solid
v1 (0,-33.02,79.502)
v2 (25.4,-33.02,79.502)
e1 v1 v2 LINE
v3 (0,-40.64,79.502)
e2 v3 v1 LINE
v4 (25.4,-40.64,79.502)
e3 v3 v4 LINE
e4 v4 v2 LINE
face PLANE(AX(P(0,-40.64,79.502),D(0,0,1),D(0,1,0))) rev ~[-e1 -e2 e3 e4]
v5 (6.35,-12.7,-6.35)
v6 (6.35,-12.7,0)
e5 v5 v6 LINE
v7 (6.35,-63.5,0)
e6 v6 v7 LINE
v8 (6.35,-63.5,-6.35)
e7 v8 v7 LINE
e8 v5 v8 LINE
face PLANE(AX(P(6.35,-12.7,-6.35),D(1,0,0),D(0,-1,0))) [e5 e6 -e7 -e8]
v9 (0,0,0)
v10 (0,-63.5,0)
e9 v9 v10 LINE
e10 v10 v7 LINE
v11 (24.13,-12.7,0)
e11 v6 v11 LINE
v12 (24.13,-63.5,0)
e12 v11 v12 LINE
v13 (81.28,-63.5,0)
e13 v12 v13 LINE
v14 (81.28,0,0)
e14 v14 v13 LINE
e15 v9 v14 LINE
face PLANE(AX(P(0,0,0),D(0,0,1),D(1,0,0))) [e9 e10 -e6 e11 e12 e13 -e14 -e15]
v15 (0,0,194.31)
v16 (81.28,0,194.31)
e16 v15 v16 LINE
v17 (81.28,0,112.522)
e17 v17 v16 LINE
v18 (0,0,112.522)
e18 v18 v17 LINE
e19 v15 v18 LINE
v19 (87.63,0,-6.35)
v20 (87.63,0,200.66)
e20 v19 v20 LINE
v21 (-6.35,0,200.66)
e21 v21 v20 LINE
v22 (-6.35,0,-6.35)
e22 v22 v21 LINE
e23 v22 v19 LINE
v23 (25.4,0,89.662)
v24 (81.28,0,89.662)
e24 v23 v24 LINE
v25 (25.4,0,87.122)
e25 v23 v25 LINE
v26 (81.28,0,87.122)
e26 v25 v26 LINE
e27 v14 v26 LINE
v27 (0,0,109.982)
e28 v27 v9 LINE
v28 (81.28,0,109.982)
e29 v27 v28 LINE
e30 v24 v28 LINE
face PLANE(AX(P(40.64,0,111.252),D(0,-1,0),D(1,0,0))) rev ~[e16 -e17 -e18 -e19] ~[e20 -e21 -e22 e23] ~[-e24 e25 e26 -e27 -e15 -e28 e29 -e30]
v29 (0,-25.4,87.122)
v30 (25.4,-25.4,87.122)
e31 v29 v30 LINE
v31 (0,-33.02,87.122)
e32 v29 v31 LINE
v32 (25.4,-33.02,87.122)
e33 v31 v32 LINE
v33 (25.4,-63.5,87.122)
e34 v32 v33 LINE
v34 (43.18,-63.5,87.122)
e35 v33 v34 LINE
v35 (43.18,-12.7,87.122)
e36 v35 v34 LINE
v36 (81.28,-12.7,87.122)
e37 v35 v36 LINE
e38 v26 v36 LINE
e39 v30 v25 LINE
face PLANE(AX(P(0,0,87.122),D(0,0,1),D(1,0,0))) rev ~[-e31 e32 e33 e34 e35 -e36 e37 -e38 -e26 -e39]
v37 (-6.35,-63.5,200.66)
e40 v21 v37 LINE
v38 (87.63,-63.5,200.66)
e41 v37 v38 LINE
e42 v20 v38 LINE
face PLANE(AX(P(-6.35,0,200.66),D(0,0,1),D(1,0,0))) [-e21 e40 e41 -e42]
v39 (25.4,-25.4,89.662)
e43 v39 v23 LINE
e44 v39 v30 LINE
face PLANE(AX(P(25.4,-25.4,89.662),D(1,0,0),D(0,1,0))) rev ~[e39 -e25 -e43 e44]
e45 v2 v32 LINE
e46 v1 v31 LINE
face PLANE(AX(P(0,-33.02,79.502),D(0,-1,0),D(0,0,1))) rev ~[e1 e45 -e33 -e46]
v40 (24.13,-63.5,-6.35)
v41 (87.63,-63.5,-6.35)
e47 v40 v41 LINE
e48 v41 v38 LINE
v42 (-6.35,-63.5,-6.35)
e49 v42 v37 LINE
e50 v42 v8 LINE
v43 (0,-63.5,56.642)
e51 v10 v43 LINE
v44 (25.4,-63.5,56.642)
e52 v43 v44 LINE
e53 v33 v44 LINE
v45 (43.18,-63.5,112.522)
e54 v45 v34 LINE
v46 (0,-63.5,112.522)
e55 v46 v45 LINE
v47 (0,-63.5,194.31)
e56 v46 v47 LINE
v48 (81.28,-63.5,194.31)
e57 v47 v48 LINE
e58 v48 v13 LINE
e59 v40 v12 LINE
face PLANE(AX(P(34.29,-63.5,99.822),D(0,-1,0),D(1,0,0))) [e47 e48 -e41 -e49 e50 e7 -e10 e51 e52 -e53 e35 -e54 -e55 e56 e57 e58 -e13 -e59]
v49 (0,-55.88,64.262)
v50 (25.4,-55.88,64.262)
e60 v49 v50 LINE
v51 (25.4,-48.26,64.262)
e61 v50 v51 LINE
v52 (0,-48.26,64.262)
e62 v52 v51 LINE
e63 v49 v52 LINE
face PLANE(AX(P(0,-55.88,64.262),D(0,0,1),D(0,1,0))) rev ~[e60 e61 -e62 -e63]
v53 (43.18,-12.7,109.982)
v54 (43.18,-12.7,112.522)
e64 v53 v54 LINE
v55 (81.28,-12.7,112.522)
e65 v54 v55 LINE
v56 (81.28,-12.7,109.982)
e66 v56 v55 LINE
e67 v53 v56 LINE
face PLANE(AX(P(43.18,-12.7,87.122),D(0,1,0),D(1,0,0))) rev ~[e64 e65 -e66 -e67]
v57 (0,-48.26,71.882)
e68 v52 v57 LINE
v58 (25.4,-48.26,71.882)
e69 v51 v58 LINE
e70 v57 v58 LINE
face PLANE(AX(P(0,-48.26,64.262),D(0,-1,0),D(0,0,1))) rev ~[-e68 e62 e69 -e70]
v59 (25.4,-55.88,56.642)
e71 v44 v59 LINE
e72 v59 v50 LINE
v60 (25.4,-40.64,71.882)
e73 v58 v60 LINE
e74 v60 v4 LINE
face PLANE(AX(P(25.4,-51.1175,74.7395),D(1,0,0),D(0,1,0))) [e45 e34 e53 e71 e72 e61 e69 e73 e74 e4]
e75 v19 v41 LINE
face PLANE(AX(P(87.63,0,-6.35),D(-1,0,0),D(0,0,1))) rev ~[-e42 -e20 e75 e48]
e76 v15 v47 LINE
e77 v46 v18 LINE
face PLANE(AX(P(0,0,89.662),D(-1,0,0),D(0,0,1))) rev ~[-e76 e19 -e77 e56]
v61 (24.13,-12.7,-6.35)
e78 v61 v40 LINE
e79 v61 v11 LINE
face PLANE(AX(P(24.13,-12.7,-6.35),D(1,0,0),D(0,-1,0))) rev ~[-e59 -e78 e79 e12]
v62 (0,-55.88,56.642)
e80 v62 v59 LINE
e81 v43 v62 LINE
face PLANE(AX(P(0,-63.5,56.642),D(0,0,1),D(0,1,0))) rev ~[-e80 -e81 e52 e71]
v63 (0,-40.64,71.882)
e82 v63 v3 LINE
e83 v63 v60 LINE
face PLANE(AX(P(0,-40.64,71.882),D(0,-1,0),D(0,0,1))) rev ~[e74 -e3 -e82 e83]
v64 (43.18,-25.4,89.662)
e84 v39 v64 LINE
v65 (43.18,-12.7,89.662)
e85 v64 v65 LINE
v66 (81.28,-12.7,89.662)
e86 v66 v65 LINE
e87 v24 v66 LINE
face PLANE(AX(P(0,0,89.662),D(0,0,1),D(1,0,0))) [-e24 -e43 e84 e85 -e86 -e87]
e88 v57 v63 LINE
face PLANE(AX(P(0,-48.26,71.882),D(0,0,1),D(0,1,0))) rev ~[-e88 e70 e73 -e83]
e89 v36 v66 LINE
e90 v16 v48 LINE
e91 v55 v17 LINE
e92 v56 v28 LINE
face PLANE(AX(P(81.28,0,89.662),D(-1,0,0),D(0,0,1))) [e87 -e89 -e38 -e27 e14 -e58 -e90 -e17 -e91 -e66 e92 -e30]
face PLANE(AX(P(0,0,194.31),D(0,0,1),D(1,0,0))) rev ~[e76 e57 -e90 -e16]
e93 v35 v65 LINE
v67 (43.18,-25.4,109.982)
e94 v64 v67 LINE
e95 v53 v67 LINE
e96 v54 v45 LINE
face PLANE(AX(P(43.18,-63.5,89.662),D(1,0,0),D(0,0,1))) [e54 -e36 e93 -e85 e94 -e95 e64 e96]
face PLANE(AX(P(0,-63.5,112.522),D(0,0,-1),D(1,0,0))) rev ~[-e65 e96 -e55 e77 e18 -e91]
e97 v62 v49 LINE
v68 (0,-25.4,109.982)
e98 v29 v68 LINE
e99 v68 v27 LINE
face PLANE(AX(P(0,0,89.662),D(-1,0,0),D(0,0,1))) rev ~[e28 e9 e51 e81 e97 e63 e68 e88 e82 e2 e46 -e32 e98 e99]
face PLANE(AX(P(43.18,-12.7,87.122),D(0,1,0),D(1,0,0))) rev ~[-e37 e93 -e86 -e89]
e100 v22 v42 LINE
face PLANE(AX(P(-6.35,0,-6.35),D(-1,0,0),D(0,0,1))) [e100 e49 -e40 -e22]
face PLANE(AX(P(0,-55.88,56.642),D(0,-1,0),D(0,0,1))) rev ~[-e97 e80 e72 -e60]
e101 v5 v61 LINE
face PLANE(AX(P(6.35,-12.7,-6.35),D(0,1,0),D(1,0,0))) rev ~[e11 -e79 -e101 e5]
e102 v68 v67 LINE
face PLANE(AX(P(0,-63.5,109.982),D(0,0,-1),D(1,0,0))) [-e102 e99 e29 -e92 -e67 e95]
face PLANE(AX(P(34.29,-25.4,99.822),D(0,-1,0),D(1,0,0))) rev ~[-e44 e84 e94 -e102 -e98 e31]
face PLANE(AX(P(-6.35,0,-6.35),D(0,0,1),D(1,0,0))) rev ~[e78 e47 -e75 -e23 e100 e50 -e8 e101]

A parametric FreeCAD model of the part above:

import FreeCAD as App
import Part
import Sketcher
from FreeCAD import Vector
Q = App.Units.Quantity

doc = App.newDocument("Part")
body = doc.addObject("PartDesign::Body", "Body")

sketch1 = body.newObject("Sketcher::SketchObject", "Sketch")
sketch1.AttachmentSupport = (doc.getObject("XZ_Plane"), [""])
sketch1.MapMode = "FlatFace"
sketch1.addGeometry([
    Part.LineSegment(Vector(-6, 201, 0), Vector(-6, -6, 0)),
    Part.LineSegment(Vector(-6, -6, 0), Vector(88, -6, 0)),
    Part.LineSegment(Vector(88, -6, 0), Vector(88, 201, 0)),
    Part.LineSegment(Vector(88, 201, 0), Vector(-6, 201, 0)),
    Part.LineSegment(Vector(81, 0, 0), Vector(0, 0, 0)),
    Part.LineSegment(Vector(0, 0, 0), Vector(0, 87, 0)),
    Part.LineSegment(Vector(0, 87, 0), Vector(81, 87, 0)),
    Part.LineSegment(Vector(81, 87, 0), Vector(81, 0, 0)),
    Part.LineSegment(Vector(81, 90, 0), Vector(0, 90, 0)),
    Part.LineSegment(Vector(0, 90, 0), Vector(0, 194, 0)),
    Part.LineSegment(Vector(0, 194, 0), Vector(81, 194, 0)),
    Part.LineSegment(Vector(81, 194, 0), Vector(81, 90, 0)),
], False)
sketch1.addConstraint([
    Sketcher.Constraint("Coincident", 0, 2, 1, 1),
    Sketcher.Constraint("Coincident", 1, 2, 2, 1),
    Sketcher.Constraint("Coincident", 2, 2, 3, 1),
    Sketcher.Constraint("Coincident", 3, 2, 0, 1),
    Sketcher.Constraint("Coincident", 4, 2, 5, 1),
    Sketcher.Constraint("Coincident", 5, 2, 6, 1),
    Sketcher.Constraint("Coincident", 6, 2, 7, 1),
    Sketcher.Constraint("Coincident", 7, 2, 4, 1),
    Sketcher.Constraint("Coincident", 8, 2, 9, 1),
    Sketcher.Constraint("Coincident", 9, 2, 10, 1),
    Sketcher.Constraint("Coincident", 10, 2, 11, 1),
    Sketcher.Constraint("Coincident", 11, 2, 8, 1),
    Sketcher.Constraint("Vertical", 0),
    Sketcher.Constraint("Horizontal", 1),
    Sketcher.Constraint("Vertical", 2),
    Sketcher.Constraint("Horizontal", 3),
    Sketcher.Constraint("Horizontal", 4),
    Sketcher.Constraint("Vertical", 5),
    Sketcher.Constraint("Horizontal", 6),
    Sketcher.Constraint("Vertical", 7),
    Sketcher.Constraint("Horizontal", 8),
    Sketcher.Constraint("Vertical", 9),
    Sketcher.Constraint("Horizontal", 10),
    Sketcher.Constraint("Vertical", 11),
    Sketcher.Constraint("Coincident", 4, 2, -1, 1),
    Sketcher.Constraint("PointOnObject", 8, 2, -2),
    Sketcher.Constraint("Vertical", 7, 2, 10, 2),
    Sketcher.Constraint("DistanceX", 1, 1, 1, 2, Q("3.7 in")),
    Sketcher.Constraint("DistanceX", 4, 2, 4, 1, Q("3.2 in")),
    Sketcher.Constraint("DistanceY", 0, 2, 0, 1, Q("8.15 in")),
    Sketcher.Constraint("DistanceY", 5, 1, 5, 2, Q("3.43 in")),
    Sketcher.Constraint("DistanceY", 9, 1, 9, 2, Q("4.12 in")),
    Sketcher.Constraint("DistanceY", -1, 1, 2, 2, Q("7.9 in")),
    Sketcher.Constraint("DistanceY", 5, 2, 8, 2, Q("0.1 in")),
    Sketcher.Constraint("DistanceX", 0, 2, -1, 1, Q("0.25 in")),
])
pad1 = body.newObject("PartDesign::Pad", "Pad")
pad1.Profile = sketch1
pad1.Length = Q("2.5 in")

sketch2 = body.newObject("Sketcher::SketchObject", "Sketch001")
sketch2.AttachmentSupport = (doc.getObject("XY_Plane"), [""])
sketch2.MapMode = "FlatFace"
sketch2.AttachmentOffset = App.Placement(Vector(0, 0, -0.25 * 25.4), App.Rotation())
sketch2.addGeometry([
    Part.LineSegment(Vector(6, -64, 0), Vector(6, -13, 0)),
    Part.LineSegment(Vector(6, -13, 0), Vector(24, -13, 0)),
    Part.LineSegment(Vector(24, -13, 0), Vector(24, -64, 0)),
    Part.LineSegment(Vector(24, -64, 0), Vector(6, -64, 0)),
], False)
sketch2.addConstraint([
    Sketcher.Constraint("Coincident", 0, 2, 1, 1),
    Sketcher.Constraint("Coincident", 1, 2, 2, 1),
    Sketcher.Constraint("Coincident", 2, 2, 3, 1),
    Sketcher.Constraint("Coincident", 3, 2, 0, 1),
    Sketcher.Constraint("Vertical", 0),
    Sketcher.Constraint("Horizontal", 1),
    Sketcher.Constraint("Vertical", 2),
    Sketcher.Constraint("Horizontal", 3),
    Sketcher.Constraint("DistanceY", 0, 1, 0, 2, Q("2 in")),
    Sketcher.Constraint("DistanceX", 1, 1, 1, 2, Q("0.7 in")),
    Sketcher.Constraint("DistanceY", 0, 2, -1, 1, Q("0.5 in")),
    Sketcher.Constraint("DistanceX", -1, 1, 0, 2, Q("0.25 in")),
])
pocket1 = body.newObject("PartDesign::Pocket", "Pocket")
pocket1.Profile = sketch2
pocket1.Length = Q("0.25 in")
pocket1.Reversed = True

sketch3 = body.newObject("Sketcher::SketchObject", "Sketch002")
sketch3.AttachmentSupport = (doc.getObject("XZ_Plane"), [""])
sketch3.MapMode = "FlatFace"
sketch3.AttachmentOffset = App.Placement(Vector(0, 0, 2.5 * 25.4), App.Rotation())
sketch3.addGeometry([
    Part.LineSegment(Vector(0, 110, 0), Vector(0, 90, 0)),
    Part.LineSegment(Vector(0, 90, 0), Vector(25, 90, 0)),
    Part.LineSegment(Vector(25, 90, 0), Vector(25, 110, 0)),
    Part.LineSegment(Vector(25, 110, 0), Vector(0, 110, 0)),
], False)
sketch3.addConstraint([
    Sketcher.Constraint("Coincident", 0, 2, 1, 1),
    Sketcher.Constraint("Coincident", 1, 2, 2, 1),
    Sketcher.Constraint("Coincident", 2, 2, 3, 1),
    Sketcher.Constraint("Coincident", 3, 2, 0, 1),
    Sketcher.Constraint("Vertical", 0),
    Sketcher.Constraint("Horizontal", 1),
    Sketcher.Constraint("Vertical", 2),
    Sketcher.Constraint("Horizontal", 3),
    Sketcher.Constraint("PointOnObject", 0, 2, -2),
    Sketcher.Constraint("DistanceX", 1, 1, 1, 2, Q("1 in")),
    Sketcher.Constraint("DistanceY", 0, 2, 0, 1, Q("0.8 in")),
    Sketcher.Constraint("DistanceY", -1, 1, 0, 2, Q("3.53 in")),
])
pad2 = body.newObject("PartDesign::Pad", "Pad001")
pad2.Profile = sketch3
pad2.Length = Q("1.5 in")
pad2.Reversed = True

sketch4 = body.newObject("Sketcher::SketchObject", "Sketch003")
sketch4.AttachmentSupport = (doc.getObject("XY_Plane"), [""])
sketch4.MapMode = "FlatFace"
sketch4.AttachmentOffset = App.Placement(Vector(0, 0, 3.53 * 25.4), App.Rotation())
sketch4.addGeometry([
    Part.LineSegment(Vector(0, 0, 0), Vector(0, -25, 0)),
    Part.LineSegment(Vector(0, -25, 0), Vector(25, -25, 0)),
    Part.LineSegment(Vector(25, -25, 0), Vector(25, 0, 0)),
    Part.LineSegment(Vector(25, 0, 0), Vector(0, 0, 0)),
], False)
sketch4.addConstraint([
    Sketcher.Constraint("Coincident", 0, 2, 1, 1),
    Sketcher.Constraint("Coincident", 1, 2, 2, 1),
    Sketcher.Constraint("Coincident", 2, 2, 3, 1),
    Sketcher.Constraint("Coincident", 3, 2, 0, 1),
    Sketcher.Constraint("Vertical", 0),
    Sketcher.Constraint("Horizontal", 1),
    Sketcher.Constraint("Vertical", 2),
    Sketcher.Constraint("Horizontal", 3),
    Sketcher.Constraint("Coincident", 3, 2, -1, 1),
    Sketcher.Constraint("Equal", 3, 0),
    Sketcher.Constraint("DistanceX", 1, 1, 1, 2, Q("1 in")),
])
pocket2 = body.newObject("PartDesign::Pocket", "Pocket001")
pocket2.Profile = sketch4
pocket2.Length = Q("0.1 in")

sketch5 = body.newObject("Sketcher::SketchObject", "Sketch004")
sketch5.AttachmentSupport = (doc.getObject("YZ_Plane"), [""])
sketch5.MapMode = "FlatFace"
sketch5.addGeometry([
    Part.LineSegment(Vector(-33, 80, 0), Vector(-33, 87, 0)),
    Part.LineSegment(Vector(-33, 87, 0), Vector(-64, 87, 0)),
    Part.LineSegment(Vector(-64, 87, 0), Vector(-64, 57, 0)),
    Part.LineSegment(Vector(-64, 57, 0), Vector(-56, 57, 0)),
    Part.LineSegment(Vector(-56, 57, 0), Vector(-56, 64, 0)),
    Part.LineSegment(Vector(-56, 64, 0), Vector(-48, 64, 0)),
    Part.LineSegment(Vector(-48, 64, 0), Vector(-48, 72, 0)),
    Part.LineSegment(Vector(-48, 72, 0), Vector(-41, 72, 0)),
    Part.LineSegment(Vector(-41, 72, 0), Vector(-41, 80, 0)),
    Part.LineSegment(Vector(-41, 80, 0), Vector(-33, 80, 0)),
], False)
sketch5.addConstraint([
    Sketcher.Constraint("Coincident", 0, 2, 1, 1),
    Sketcher.Constraint("Coincident", 1, 2, 2, 1),
    Sketcher.Constraint("Coincident", 2, 2, 3, 1),
    Sketcher.Constraint("Coincident", 3, 2, 4, 1),
    Sketcher.Constraint("Coincident", 4, 2, 5, 1),
    Sketcher.Constraint("Coincident", 5, 2, 6, 1),
    Sketcher.Constraint("Coincident", 6, 2, 7, 1),
    Sketcher.Constraint("Coincident", 7, 2, 8, 1),
    Sketcher.Constraint("Coincident", 8, 2, 9, 1),
    Sketcher.Constraint("Coincident", 9, 2, 0, 1),
    Sketcher.Constraint("Vertical", 0),
    Sketcher.Constraint("Horizontal", 1),
    Sketcher.Constraint("Vertical", 2),
    Sketcher.Constraint("Horizontal", 3),
    Sketcher.Constraint("Vertical", 4),
    Sketcher.Constraint("Horizontal", 5),
    Sketcher.Constraint("Vertical", 6),
    Sketcher.Constraint("Horizontal", 7),
    Sketcher.Constraint("Vertical", 8),
    Sketcher.Constraint("Horizontal", 9),
    Sketcher.Constraint("Equal", 3, 5),
    Sketcher.Constraint("Equal", 5, 7),
    Sketcher.Constraint("Equal", 7, 9),
    Sketcher.Constraint("Equal", 9, 0),
    Sketcher.Constraint("Equal", 1, 2),
    Sketcher.Constraint("Equal", 0, 4),
    Sketcher.Constraint("Equal", 4, 6),
    Sketcher.Constraint("DistanceX", 1, 2, 1, 1, Q("1.2 in")),
    Sketcher.Constraint("DistanceX", 0, 2, -1, 1, Q("1.3 in")),
    Sketcher.Constraint("DistanceY", -1, 1, 0, 2, Q("3.43 in")),
])
pad3 = body.newObject("PartDesign::Pad", "Pad002")
pad3.Profile = sketch5
pad3.Length = Q("1 in")

sketch6 = body.newObject("Sketcher::SketchObject", "Sketch005")
sketch6.AttachmentSupport = (doc.getObject("XZ_Plane"), [""])
sketch6.MapMode = "FlatFace"
sketch6.AttachmentOffset = App.Placement(Vector(0, 0, 2.5 * 25.4), App.Rotation())
sketch6.addGeometry([
    Part.LineSegment(Vector(0, 112.5, 0), Vector(0, 110, 0)),
    Part.LineSegment(Vector(0, 110, 0), Vector(81.3, 110, 0)),
    Part.LineSegment(Vector(81.3, 110, 0), Vector(81.3, 112.5, 0)),
    Part.LineSegment(Vector(81.3, 112.5, 0), Vector(0, 112.5, 0)),
], False)
sketch6.addConstraint([
    Sketcher.Constraint("Coincident", 0, 2, 1, 1),
    Sketcher.Constraint("Coincident", 1, 2, 2, 1),
    Sketcher.Constraint("Coincident", 2, 2, 3, 1),
    Sketcher.Constraint("Coincident", 3, 2, 0, 1),
    Sketcher.Constraint("Vertical", 0),
    Sketcher.Constraint("Horizontal", 1),
    Sketcher.Constraint("Vertical", 2),
    Sketcher.Constraint("Horizontal", 3),
    Sketcher.Constraint("PointOnObject", 0, 2, -2),
    Sketcher.Constraint("DistanceX", 1, 1, 1, 2, Q("3.2 in")),
    Sketcher.Constraint("DistanceY", 0, 2, 0, 1, Q("0.1 in")),
    Sketcher.Constraint("DistanceY", -1, 1, 0, 2, Q("4.33 in")),
])
pad4 = body.newObject("PartDesign::Pad", "Pad003")
pad4.Profile = sketch6
pad4.Length = Q("2.5 in")
pad4.Reversed = True

sketch7 = body.newObject("Sketcher::SketchObject", "Sketch006")
sketch7.AttachmentSupport = (doc.getObject("XY_Plane"), [""])
sketch7.MapMode = "FlatFace"
sketch7.AttachmentOffset = App.Placement(Vector(0, 0, 3.43 * 25.4), App.Rotation())
sketch7.addGeometry([
    Part.LineSegment(Vector(43, -64, 0), Vector(43, -13, 0)),
    Part.LineSegment(Vector(43, -13, 0), Vector(81, -13, 0)),
    Part.LineSegment(Vector(81, -13, 0), Vector(81, -64, 0)),
    Part.LineSegment(Vector(81, -64, 0), Vector(43, -64, 0)),
], False)
sketch7.addConstraint([
    Sketcher.Constraint("Coincident", 0, 2, 1, 1),
    Sketcher.Constraint("Coincident", 1, 2, 2, 1),
    Sketcher.Constraint("Coincident", 2, 2, 3, 1),
    Sketcher.Constraint("Coincident", 3, 2, 0, 1),
    Sketcher.Constraint("Vertical", 0),
    Sketcher.Constraint("Horizontal", 1),
    Sketcher.Constraint("Vertical", 2),
    Sketcher.Constraint("Horizontal", 3),
    Sketcher.Constraint("DistanceY", 0, 1, 0, 2, Q("2 in")),
    Sketcher.Constraint("DistanceX", 1, 1, 1, 2, Q("1.5 in")),
    Sketcher.Constraint("DistanceX", -1, 1, 0, 2, Q("1.7 in")),
    Sketcher.Constraint("DistanceY", 0, 2, -1, 1, Q("0.5 in")),
])
pocket3 = body.newObject("PartDesign::Pocket", "Pocket002")
pocket3.Profile = sketch7
pocket3.Length = Q("1 in")
pocket3.Reversed = True

sketch8 = body.newObject("Sketcher::SketchObject", "Sketch007")
sketch8.AttachmentSupport = (doc.getObject("XZ_Plane"), [""])
sketch8.MapMode = "FlatFace"
sketch8.AttachmentOffset = App.Placement(Vector(0, 0, 2.5 * 25.4), App.Rotation())
sketch8.addGeometry([
    Part.LineSegment(Vector(25, 110, 0), Vector(25, 90, 0)),
    Part.LineSegment(Vector(25, 90, 0), Vector(43, 90, 0)),
    Part.LineSegment(Vector(43, 90, 0), Vector(43, 110, 0)),
    Part.LineSegment(Vector(43, 110, 0), Vector(25, 110, 0)),
], False)
sketch8.addConstraint([
    Sketcher.Constraint("Coincident", 0, 2, 1, 1),
    Sketcher.Constraint("Coincident", 1, 2, 2, 1),
    Sketcher.Constraint("Coincident", 2, 2, 3, 1),
    Sketcher.Constraint("Coincident", 3, 2, 0, 1),
    Sketcher.Constraint("Vertical", 0),
    Sketcher.Constraint("Horizontal", 1),
    Sketcher.Constraint("Vertical", 2),
    Sketcher.Constraint("Horizontal", 3),
    Sketcher.Constraint("DistanceX", 1, 1, 1, 2, Q("0.7 in")),
    Sketcher.Constraint("DistanceY", 0, 2, 0, 1, Q("0.8 in")),
    Sketcher.Constraint("DistanceX", -1, 1, 0, 2, Q("1 in")),
    Sketcher.Constraint("DistanceY", -1, 1, 0, 2, Q("3.53 in")),
])
pad5 = body.newObject("PartDesign::Pad", "Pad004")
pad5.Profile = sketch8
pad5.Length = Q("1.5 in")
pad5.Reversed = True

doc.recompute()
